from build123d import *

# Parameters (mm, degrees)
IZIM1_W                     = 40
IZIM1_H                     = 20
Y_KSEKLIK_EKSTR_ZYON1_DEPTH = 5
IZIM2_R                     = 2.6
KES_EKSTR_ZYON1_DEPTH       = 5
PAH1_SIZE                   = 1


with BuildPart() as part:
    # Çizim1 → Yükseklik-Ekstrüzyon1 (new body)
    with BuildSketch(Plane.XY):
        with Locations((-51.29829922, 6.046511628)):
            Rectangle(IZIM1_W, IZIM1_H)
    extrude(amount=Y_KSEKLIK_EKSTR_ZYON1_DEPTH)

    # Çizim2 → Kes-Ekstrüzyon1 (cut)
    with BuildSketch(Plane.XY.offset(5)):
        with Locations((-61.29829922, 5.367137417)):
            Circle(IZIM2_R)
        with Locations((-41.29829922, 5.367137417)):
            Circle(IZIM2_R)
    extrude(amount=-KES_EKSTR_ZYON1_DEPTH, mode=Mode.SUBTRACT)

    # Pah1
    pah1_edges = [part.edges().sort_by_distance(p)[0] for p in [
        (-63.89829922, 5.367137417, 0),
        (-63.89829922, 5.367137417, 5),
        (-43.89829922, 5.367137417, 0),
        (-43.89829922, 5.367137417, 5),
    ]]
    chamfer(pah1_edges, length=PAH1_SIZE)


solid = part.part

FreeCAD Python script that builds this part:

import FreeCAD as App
import Part
import Sketcher

V = App.Vector


def edges_at(feature, points):
    """Names of the edges that pass closest to the given points."""
    edges = feature.Shape.Edges
    near = lambda p: min(range(len(edges)), key=lambda i: edges[i].distToShape(Part.Vertex(*p))[0])
    return sorted({f"Edge{near(p) + 1}" for p in points})

doc = App.newDocument("Part")
body = doc.addObject("PartDesign::Body", "Body")

sketch1 = body.newObject("Sketcher::SketchObject", "Sketch")
sketch1.AttachmentSupport = (doc.getObject("XY_Plane"), [""])
sketch1.MapMode = "FlatFace"
sketch1.addGeometry([
    Part.LineSegment(V(-71, 16, 0), V(-71, -4, 0)),
    Part.LineSegment(V(-71, -4, 0), V(-31, -4, 0)),
    Part.LineSegment(V(-31, -4, 0), V(-31, 16, 0)),
    Part.LineSegment(V(-31, 16, 0), V(-71, 16, 0)),
], False)
sketch1.addConstraint([
    Sketcher.Constraint("Coincident", 0, 2, 1, 1),
    Sketcher.Constraint("Coincident", 1, 2, 2, 1),
    Sketcher.Constraint("Coincident", 2, 2, 3, 1),
    Sketcher.Constraint("Coincident", 3, 2, 0, 1),
    Sketcher.Constraint("Vertical", 0),
    Sketcher.Constraint("Horizontal", 1),
    Sketcher.Constraint("Vertical", 2),
    Sketcher.Constraint("Horizontal", 3),
    Sketcher.Constraint("DistanceX", 1, 1, 1, 2, 40.0),
    Sketcher.Constraint("DistanceY", 0, 2, 0, 1, 20.0),
    Sketcher.Constraint("DistanceX", 0, 2, -1, 1, 71.298299),
    Sketcher.Constraint("DistanceY", 0, 2, -1, 1, 3.953488),
])
pad1 = body.newObject("PartDesign::Pad", "Pad")
pad1.Profile = sketch1
pad1.Length = 5

sketch2 = body.newObject("Sketcher::SketchObject", "Sketch001")
sketch2.AttachmentSupport = (doc.getObject("XY_Plane"), [""])
sketch2.MapMode = "FlatFace"
sketch2.AttachmentOffset = App.Placement(V(0, 0, 5), App.Rotation())
sketch2.addGeometry([
    Part.Circle(V(-61.3, 5.4, 0), V(0, 0, 1), 2.6),
    Part.Circle(V(-41.3, 5.4, 0), V(0, 0, 1), 2.6),
], False)
sketch2.addConstraint([
    Sketcher.Constraint("Equal", 0, 1),
    Sketcher.Constraint("Horizontal", 0, 3, 1, 3),
    Sketcher.Constraint("Diameter", 0, 5.2),
    Sketcher.Constraint("DistanceX", 0, 3, 1, 3, 20.0),
    Sketcher.Constraint("DistanceX", 0, 3, -1, 1, 61.298299),
    Sketcher.Constraint("DistanceY", -1, 1, 0, 3, 5.367137),
])
pocket1 = body.newObject("PartDesign::Pocket", "Pocket")
pocket1.Profile = sketch2
pocket1.Length = 5
doc.recompute()

chamfer = body.newObject("PartDesign::Chamfer", "Chamfer")
chamfer.Base = (pocket1, edges_at(pocket1, [
    (-63.898, 5.367, 0),
    (-63.898, 5.367, 5),
    (-43.898, 5.367, 0),
    (-43.898, 5.367, 5),
]))
chamfer.Size = 1

doc.recompute()
